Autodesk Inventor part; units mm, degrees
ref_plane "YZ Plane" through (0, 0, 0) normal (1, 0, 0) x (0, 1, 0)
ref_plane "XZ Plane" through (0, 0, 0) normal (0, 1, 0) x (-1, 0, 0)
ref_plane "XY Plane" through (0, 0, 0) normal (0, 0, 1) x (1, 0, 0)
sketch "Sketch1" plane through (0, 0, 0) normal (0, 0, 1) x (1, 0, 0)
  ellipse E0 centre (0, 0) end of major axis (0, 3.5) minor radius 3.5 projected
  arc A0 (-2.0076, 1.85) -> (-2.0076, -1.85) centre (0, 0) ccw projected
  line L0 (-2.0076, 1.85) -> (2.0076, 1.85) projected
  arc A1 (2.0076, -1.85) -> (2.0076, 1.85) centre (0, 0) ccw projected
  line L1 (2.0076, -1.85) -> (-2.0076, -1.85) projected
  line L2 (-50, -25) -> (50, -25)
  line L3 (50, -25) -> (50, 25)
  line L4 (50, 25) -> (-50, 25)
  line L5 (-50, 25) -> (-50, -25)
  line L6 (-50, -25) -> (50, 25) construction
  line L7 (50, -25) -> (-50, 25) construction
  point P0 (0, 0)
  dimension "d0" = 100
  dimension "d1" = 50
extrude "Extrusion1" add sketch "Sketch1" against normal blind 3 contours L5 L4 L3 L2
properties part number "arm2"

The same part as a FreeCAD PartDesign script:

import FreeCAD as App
import Part
import Sketcher

V = App.Vector
Q = App.Units.Quantity

doc = App.newDocument("Part")
body = doc.addObject("PartDesign::Body", "Body")

sketch1 = body.newObject("Sketcher::SketchObject", "Sketch")
sketch1.AttachmentSupport = (doc.getObject("XY_Plane"), [""])
sketch1.MapMode = "FlatFace"
sketch1.addGeometry(Part.LineSegment(V(-50, 25, 0), V(-50, -25, 0)), False)
sketch1.addGeometry(Part.LineSegment(V(-50, -25, 0), V(50, -25, 0)), False)
sketch1.addGeometry(Part.LineSegment(V(50, -25, 0), V(50, 25, 0)), False)
sketch1.addGeometry(Part.LineSegment(V(50, 25, 0), V(-50, 25, 0)), False)
sketch1.addGeometry(Part.Ellipse(V(0, 3.5, 0), V(-3.5, 0, 0), V(0, 0, 0)), False)
sketch1.addConstraint(Sketcher.Constraint("Block", 4))
sketch1.addConstraint(Sketcher.Constraint("Coincident", 0, 2, 1, 1))
sketch1.addConstraint(Sketcher.Constraint("Coincident", 1, 2, 2, 1))
sketch1.addConstraint(Sketcher.Constraint("Coincident", 2, 2, 3, 1))
sketch1.addConstraint(Sketcher.Constraint("Coincident", 3, 2, 0, 1))
sketch1.addConstraint(Sketcher.Constraint("Vertical", 0))
sketch1.addConstraint(Sketcher.Constraint("Horizontal", 1))
sketch1.addConstraint(Sketcher.Constraint("Vertical", 2))
sketch1.addConstraint(Sketcher.Constraint("Horizontal", 3))
sketch1.addConstraint(Sketcher.Constraint("Symmetric", 0, 2, 2, 2, -1, 1))
sketch1.addConstraint(Sketcher.Constraint("DistanceX", 1, 1, 1, 2, Q("3.937 in")))
sketch1.addConstraint(Sketcher.Constraint("DistanceY", 0, 2, 0, 1, Q("1.9685 in")))
pad1 = body.newObject("PartDesign::Pad", "Pad")
pad1.Profile = sketch1
pad1.Length = Q("0.1181102 in")
pad1.Reversed = True

doc.recompute()
